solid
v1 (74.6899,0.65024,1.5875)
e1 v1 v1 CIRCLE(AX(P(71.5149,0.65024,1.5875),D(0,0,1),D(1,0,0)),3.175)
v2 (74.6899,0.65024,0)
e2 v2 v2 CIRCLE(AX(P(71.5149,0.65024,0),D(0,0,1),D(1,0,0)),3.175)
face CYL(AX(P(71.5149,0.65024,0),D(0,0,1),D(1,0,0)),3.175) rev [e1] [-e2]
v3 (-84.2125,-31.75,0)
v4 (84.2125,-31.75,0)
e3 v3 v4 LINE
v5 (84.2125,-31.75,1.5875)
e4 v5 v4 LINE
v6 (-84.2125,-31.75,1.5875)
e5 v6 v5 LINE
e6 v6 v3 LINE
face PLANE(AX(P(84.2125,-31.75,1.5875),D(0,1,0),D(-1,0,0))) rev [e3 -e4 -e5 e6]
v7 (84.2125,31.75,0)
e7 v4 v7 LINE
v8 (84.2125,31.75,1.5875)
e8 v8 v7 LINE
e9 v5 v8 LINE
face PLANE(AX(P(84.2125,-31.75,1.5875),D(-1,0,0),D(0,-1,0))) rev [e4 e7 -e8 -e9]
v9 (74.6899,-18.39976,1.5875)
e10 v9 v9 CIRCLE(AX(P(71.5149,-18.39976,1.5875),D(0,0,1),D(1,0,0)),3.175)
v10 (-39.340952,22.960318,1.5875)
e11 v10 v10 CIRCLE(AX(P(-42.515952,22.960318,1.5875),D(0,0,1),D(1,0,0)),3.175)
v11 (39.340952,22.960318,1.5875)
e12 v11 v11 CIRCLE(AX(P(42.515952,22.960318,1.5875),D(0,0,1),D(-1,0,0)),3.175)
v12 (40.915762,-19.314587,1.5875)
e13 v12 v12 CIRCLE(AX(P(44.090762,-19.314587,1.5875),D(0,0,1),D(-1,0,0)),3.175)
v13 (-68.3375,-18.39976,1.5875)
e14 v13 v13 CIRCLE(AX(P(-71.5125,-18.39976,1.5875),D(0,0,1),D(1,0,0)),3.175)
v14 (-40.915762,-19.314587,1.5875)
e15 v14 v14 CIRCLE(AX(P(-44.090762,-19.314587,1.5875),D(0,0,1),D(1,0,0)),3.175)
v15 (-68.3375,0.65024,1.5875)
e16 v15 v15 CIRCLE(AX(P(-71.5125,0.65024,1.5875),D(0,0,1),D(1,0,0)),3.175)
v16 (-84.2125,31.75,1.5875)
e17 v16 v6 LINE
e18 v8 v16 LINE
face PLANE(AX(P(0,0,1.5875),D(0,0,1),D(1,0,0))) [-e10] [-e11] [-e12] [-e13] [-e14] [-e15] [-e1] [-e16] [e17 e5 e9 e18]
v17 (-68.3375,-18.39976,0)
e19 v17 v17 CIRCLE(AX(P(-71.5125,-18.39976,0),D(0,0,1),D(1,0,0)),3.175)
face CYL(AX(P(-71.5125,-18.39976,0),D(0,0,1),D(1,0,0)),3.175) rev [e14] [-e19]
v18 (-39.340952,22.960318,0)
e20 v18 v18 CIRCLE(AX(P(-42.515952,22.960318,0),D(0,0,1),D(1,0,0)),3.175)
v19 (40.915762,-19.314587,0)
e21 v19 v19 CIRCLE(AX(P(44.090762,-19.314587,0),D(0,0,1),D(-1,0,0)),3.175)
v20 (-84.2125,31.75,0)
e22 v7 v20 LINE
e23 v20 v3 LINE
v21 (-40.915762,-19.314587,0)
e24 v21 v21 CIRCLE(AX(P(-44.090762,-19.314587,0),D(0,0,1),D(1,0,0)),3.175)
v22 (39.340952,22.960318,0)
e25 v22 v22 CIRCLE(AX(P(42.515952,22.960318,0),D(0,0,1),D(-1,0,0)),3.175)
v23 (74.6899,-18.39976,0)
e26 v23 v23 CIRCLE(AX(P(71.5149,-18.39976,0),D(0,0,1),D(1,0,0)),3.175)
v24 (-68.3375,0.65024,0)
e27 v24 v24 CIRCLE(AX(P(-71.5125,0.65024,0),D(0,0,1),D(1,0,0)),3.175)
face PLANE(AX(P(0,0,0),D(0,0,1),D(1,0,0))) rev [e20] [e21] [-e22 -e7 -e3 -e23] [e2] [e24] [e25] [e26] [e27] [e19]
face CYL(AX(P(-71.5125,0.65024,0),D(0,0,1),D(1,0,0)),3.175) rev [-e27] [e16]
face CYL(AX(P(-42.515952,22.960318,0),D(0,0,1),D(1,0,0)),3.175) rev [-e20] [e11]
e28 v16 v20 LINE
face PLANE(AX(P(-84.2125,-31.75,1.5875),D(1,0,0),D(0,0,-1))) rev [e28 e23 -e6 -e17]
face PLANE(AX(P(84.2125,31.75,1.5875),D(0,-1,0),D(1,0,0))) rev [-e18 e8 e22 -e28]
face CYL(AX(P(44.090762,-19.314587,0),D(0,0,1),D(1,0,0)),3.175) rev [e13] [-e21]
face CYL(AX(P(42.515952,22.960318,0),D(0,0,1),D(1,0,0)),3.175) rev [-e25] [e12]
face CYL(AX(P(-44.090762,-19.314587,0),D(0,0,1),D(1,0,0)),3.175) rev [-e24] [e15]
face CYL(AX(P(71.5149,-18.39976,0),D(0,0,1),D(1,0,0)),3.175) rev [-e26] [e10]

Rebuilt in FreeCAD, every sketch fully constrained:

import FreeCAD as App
import Part
import Sketcher

V = App.Vector
Q = App.Units.Quantity


def add_polygon(sketch, points):
    """Adds a closed chain of lines whose ends are joined by coincident constraints."""
    first, n = sketch.GeometryCount, len(points)
    for a, b in zip(points, points[1:] + points[:1]):
        sketch.addGeometry(Part.LineSegment(App.Vector(*a, 0), App.Vector(*b, 0)), False)
    for i in range(n):
        sketch.addConstraint(Sketcher.Constraint("Coincident", first + i, 2, first + (i + 1) % n, 1))

doc = App.newDocument("Part")
body = doc.addObject("PartDesign::Body", "Body")

# Sketch on XY plane
sketch1 = body.newObject("Sketcher::SketchObject", "Sketch")
sketch1.AttachmentSupport = (doc.getObject("XY_Plane"), [""])
sketch1.MapMode = "FlatFace"
add_polygon(sketch1, [(-84.2125, 31.75), (-84.2125, -31.75), (84.2125, -31.75), (84.2125, 31.75)])  # lines 0-3
sketch1.addConstraint(Sketcher.Constraint("Vertical", 0))
sketch1.addConstraint(Sketcher.Constraint("Horizontal", 1))
sketch1.addConstraint(Sketcher.Constraint("Vertical", 2))
sketch1.addConstraint(Sketcher.Constraint("Horizontal", 3))
sketch1.addConstraint(Sketcher.Constraint("Symmetric", 0, 2, 2, 2, -1, 1))
sketch1.addConstraint(Sketcher.Constraint("DistanceY", 0, 2, 0, 1, Q("2.5 in")))
sketch1.addConstraint(Sketcher.Constraint("DistanceX", 1, 1, 1, 2, Q("168.425 mm")))
pad1 = body.newObject("PartDesign::Pad", "Pad")
pad1.Profile = sketch1
pad1.Length = Q("0.0625 in")

# Sketch on XY plane
sketch2 = body.newObject("Sketcher::SketchObject", "Sketch001")
sketch2.AttachmentSupport = (doc.getObject("XY_Plane"), [""])
sketch2.MapMode = "FlatFace"
sketch2.AttachmentOffset = App.Placement(V(0, 0, 0.0625 * 25.4), App.Rotation())
sketch2.addGeometry(Part.Circle(V(-42.515952, 22.960318, 0), V(0, 0, 1), 3.175), False)
sketch2.addGeometry(Part.Circle(V(-44.090762, -19.314587, 0), V(0, 0, 1), 3.175), False)
sketch2.addGeometry(Part.Circle(V(-71.5125, 0.65024, 0), V(0, 0, 1), 3.175), False)
sketch2.addGeometry(Part.Circle(V(-71.5125, -18.39976, 0), V(0, 0, 1), 3.175), False)
sketch2.addGeometry(Part.Circle(V(71.5149, 0.65024, 0), V(0, 0, 1), 3.175), False)
sketch2.addGeometry(Part.Circle(V(71.5149, -18.39976, 0), V(0, 0, 1), 3.175), False)
sketch2.addGeometry(Part.Circle(V(44.090762, -19.314587, 0), V(0, 0, 1), 3.175), False)
sketch2.addGeometry(Part.Circle(V(42.515952, 22.960318, 0), V(0, 0, 1), 3.175), False)
sketch2.addConstraint(Sketcher.Constraint("Equal", 0, 1))
sketch2.addConstraint(Sketcher.Constraint("Equal", 1, 2))
sketch2.addConstraint(Sketcher.Constraint("Equal", 2, 3))
sketch2.addConstraint(Sketcher.Constraint("Equal", 3, 4))
sketch2.addConstraint(Sketcher.Constraint("Equal", 4, 5))
sketch2.addConstraint(Sketcher.Constraint("Equal", 5, 6))
sketch2.addConstraint(Sketcher.Constraint("Equal", 6, 7))
sketch2.addConstraint(Sketcher.Constraint("Symmetric", 1, 3, 6, 3, -2))
sketch2.addConstraint(Sketcher.Constraint("Symmetric", 0, 3, 7, 3, -2))
sketch2.addConstraint(Sketcher.Constraint("Horizontal", 2, 3, 4, 3))
sketch2.addConstraint(Sketcher.Constraint("Horizontal", 3, 3, 5, 3))
sketch2.addConstraint(Sketcher.Constraint("Vertical", 2, 3, 3, 3))
sketch2.addConstraint(Sketcher.Constraint("Vertical", 4, 3, 5, 3))
sketch2.addConstraint(Sketcher.Constraint("Diameter", 0, Q("0.25 in")))
sketch2.addConstraint(Sketcher.Constraint("DistanceY", 3, 3, 2, 3, Q("0.75 in")))
sketch2.addConstraint(Sketcher.Constraint("DistanceX", 2, 3, 4, 3, Q("5.631 in")))
sketch2.addConstraint(Sketcher.Constraint("DistanceY", -1, 1, 2, 3, Q("0.0256 in")))
sketch2.addConstraint(Sketcher.Constraint("DistanceX", 2, 3, -1, 1, Q("71.5125 mm")))
sketch2.addConstraint(Sketcher.Constraint("DistanceY", -1, 1, 0, 3, Q("22.960318 mm")))
sketch2.addConstraint(Sketcher.Constraint("DistanceX", 1, 3, -1, 1, Q("44.090762 mm")))
sketch2.addConstraint(Sketcher.Constraint("DistanceX", 1, 3, 0, 3, Q("1.574809 mm")))
sketch2.addConstraint(Sketcher.Constraint("DistanceY", 1, 3, -1, 1, Q("19.314587 mm")))
pocket1 = body.newObject("PartDesign::Pocket", "Pocket")
pocket1.Profile = sketch2
pocket1.Type = "ThroughAll"

doc.recompute()
